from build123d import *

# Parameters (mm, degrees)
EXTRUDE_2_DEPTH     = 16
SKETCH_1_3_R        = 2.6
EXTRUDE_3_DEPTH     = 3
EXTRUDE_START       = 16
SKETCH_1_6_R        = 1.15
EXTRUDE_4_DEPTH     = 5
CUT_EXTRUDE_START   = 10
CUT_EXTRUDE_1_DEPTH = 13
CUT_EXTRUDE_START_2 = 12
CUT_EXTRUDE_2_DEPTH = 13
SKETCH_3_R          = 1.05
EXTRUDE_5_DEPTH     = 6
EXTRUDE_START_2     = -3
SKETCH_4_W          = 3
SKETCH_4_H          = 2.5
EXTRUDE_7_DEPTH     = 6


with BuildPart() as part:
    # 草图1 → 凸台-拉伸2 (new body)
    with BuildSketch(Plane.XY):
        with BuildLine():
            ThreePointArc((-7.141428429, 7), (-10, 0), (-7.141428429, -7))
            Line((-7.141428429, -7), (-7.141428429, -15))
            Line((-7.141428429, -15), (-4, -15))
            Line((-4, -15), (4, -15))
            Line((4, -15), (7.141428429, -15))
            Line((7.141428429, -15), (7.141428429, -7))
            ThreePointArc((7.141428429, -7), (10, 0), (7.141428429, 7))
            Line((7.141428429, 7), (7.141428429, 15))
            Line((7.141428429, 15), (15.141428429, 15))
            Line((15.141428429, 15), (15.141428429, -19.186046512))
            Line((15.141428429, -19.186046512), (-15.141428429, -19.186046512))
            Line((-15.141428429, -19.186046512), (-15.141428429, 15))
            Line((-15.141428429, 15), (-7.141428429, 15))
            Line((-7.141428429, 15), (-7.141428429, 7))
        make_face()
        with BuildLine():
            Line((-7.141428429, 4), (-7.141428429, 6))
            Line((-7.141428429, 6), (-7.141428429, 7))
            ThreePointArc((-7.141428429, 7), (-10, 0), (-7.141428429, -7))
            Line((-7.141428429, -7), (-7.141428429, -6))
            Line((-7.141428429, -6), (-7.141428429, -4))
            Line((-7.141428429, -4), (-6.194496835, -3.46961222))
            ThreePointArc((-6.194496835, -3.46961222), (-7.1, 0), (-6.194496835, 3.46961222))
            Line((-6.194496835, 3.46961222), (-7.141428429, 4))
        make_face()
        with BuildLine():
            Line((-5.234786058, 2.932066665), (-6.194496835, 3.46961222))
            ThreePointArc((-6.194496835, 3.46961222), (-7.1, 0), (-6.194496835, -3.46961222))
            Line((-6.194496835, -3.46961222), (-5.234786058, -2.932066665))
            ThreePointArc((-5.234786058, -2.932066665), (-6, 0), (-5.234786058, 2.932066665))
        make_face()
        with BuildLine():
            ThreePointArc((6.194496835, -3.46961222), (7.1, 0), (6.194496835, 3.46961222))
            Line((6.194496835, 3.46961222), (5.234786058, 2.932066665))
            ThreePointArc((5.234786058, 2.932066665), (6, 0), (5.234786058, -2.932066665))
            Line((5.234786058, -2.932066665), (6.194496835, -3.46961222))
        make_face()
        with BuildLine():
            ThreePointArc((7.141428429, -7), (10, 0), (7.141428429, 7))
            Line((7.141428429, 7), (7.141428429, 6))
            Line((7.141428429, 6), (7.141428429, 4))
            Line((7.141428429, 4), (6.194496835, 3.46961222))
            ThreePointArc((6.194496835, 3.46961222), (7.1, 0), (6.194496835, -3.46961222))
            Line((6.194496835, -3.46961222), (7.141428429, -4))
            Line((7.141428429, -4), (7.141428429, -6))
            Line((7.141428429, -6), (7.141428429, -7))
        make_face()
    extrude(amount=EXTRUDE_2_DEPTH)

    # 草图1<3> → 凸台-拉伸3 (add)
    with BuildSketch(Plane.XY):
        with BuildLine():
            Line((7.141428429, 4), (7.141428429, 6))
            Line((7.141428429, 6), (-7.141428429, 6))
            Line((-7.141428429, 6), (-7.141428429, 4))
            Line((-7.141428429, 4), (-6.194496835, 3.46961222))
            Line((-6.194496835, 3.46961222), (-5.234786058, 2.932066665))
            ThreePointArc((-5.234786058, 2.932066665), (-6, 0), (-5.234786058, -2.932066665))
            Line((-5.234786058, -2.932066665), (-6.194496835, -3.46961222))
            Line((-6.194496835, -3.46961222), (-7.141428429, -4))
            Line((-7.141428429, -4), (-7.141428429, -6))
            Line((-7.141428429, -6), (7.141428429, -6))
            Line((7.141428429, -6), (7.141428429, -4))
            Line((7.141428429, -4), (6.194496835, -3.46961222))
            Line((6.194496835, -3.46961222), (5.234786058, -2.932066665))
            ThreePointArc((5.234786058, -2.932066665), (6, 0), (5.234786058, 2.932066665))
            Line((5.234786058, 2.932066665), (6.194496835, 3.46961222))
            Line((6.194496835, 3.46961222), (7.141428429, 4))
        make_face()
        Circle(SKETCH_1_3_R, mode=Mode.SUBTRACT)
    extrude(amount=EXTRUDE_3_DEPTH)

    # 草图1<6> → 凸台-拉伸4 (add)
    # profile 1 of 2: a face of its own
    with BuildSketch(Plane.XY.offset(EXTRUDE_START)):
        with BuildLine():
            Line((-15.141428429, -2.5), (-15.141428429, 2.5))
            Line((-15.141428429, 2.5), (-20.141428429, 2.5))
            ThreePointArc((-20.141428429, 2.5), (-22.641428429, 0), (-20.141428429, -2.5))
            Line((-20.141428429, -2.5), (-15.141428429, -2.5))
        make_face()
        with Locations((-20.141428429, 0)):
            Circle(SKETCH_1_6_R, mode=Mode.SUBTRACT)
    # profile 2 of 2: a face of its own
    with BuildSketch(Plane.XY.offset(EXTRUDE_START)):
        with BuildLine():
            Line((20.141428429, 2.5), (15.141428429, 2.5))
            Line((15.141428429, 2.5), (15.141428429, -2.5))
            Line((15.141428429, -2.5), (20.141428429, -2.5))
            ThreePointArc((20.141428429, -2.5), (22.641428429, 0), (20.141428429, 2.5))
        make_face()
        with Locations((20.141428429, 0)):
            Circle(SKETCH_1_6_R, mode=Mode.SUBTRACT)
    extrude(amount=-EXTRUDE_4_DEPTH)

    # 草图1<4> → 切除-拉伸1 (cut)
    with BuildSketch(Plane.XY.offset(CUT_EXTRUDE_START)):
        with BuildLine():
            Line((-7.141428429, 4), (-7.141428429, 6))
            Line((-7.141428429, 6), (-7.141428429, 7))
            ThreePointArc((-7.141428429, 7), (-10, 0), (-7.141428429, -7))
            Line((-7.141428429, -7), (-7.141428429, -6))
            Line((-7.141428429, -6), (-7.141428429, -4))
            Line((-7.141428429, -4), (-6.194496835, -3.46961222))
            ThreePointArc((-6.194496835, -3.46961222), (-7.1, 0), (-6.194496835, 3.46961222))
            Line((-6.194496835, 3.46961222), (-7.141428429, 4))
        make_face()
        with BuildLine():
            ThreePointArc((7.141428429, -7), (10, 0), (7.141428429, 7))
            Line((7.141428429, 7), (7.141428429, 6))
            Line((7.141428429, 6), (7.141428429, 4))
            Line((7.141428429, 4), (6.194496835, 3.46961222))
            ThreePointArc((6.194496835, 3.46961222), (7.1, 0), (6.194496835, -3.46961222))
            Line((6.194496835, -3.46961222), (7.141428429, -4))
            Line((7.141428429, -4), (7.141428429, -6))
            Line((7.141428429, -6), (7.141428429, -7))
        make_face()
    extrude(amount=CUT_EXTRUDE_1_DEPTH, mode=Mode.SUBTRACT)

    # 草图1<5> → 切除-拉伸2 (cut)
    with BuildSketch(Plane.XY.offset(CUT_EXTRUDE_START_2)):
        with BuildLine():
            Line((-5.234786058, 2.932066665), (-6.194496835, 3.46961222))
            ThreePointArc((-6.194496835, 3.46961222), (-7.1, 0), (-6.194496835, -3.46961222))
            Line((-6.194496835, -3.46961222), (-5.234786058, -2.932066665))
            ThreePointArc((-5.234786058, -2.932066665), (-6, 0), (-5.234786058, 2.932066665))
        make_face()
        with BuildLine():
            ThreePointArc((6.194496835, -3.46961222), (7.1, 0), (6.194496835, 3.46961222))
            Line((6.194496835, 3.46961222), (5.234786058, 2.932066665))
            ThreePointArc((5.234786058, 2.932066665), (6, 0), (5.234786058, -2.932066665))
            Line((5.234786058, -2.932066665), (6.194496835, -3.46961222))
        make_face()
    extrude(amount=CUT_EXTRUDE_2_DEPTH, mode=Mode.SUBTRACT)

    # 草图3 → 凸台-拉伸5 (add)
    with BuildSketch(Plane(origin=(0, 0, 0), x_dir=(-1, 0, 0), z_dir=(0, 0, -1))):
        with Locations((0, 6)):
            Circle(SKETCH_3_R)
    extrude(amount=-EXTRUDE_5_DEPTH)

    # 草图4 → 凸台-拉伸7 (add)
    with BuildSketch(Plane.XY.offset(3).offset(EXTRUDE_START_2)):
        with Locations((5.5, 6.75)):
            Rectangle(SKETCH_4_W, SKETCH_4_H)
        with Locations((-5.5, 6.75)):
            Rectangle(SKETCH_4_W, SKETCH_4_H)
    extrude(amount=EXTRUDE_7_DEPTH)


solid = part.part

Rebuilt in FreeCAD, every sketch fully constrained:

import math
import FreeCAD as App
import Part
import Sketcher

V = App.Vector
Q = App.Units.Quantity


def add_polygon(sketch, points):
    """Adds a closed chain of lines whose ends are joined by coincident constraints."""
    first, n = sketch.GeometryCount, len(points)
    for a, b in zip(points, points[1:] + points[:1]):
        sketch.addGeometry(Part.LineSegment(App.Vector(*a, 0), App.Vector(*b, 0)), False)
    for i in range(n):
        sketch.addConstraint(Sketcher.Constraint("Coincident", first + i, 2, first + (i + 1) % n, 1))

doc = App.newDocument("Part")
body = doc.addObject("PartDesign::Body", "Body")

# Sketch on XY plane
sketch1 = doc.addObject("Sketcher::SketchObject", "Sketch")
body.addObject(sketch1)
sketch1.AttachmentSupport = (doc.XY_Plane, [""])
sketch1.MapMode = "FlatFace"
sketch1.addGeometry([
    Part.LineSegment(V(-7.1, -15, 0), V(-7.1, -4, 0)),  # 0
    Part.LineSegment(V(-7.1, -4, 0), V(-6.2, -3.5, 0)),  # 1
    Part.LineSegment(V(-6.2, -3.5, 0), V(-5.2, -2.9, 0)),  # 2
    Part.ArcOfCircle(Part.Circle(V(0, 0, 0), V(0, 0, 1), 6), math.radians(151), math.radians(209)),  # 3
    Part.LineSegment(V(-5.2, 2.9, 0), V(-6.2, 3.5, 0)),  # 4
    Part.LineSegment(V(-6.2, 3.5, 0), V(-7.1, 4, 0)),  # 5
    Part.LineSegment(V(-7.1, 4, 0), V(-7.1, 15, 0)),  # 6
    Part.LineSegment(V(-7.1, 15, 0), V(-15.1, 15, 0)),  # 7
    Part.LineSegment(V(-15.1, 15, 0), V(-15.1, -19.2, 0)),  # 8
    Part.LineSegment(V(-15.1, -19.2, 0), V(15.1, -19.2, 0)),  # 9
    Part.LineSegment(V(15.1, -19.2, 0), V(15.1, 15, 0)),  # 10
    Part.LineSegment(V(15.1, 15, 0), V(7.1, 15, 0)),  # 11
    Part.LineSegment(V(7.1, 15, 0), V(7.1, 4, 0)),  # 12
    Part.LineSegment(V(7.1, 4, 0), V(6.2, 3.5, 0)),  # 13
    Part.LineSegment(V(6.2, 3.5, 0), V(5.2, 2.9, 0)),  # 14
    Part.ArcOfCircle(Part.Circle(V(0, 0, 0), V(0, 0, 1), 6), math.radians(-29), math.radians(29)),  # 15
    Part.LineSegment(V(5.2, -2.9, 0), V(6.2, -3.5, 0)),  # 16
    Part.LineSegment(V(6.2, -3.5, 0), V(7.1, -4, 0)),  # 17
    Part.LineSegment(V(7.1, -4, 0), V(7.1, -15, 0)),  # 18
    Part.LineSegment(V(7.1, -15, 0), V(-7.1, -15, 0)),  # 19
], False)
sketch1.addConstraint([
    Sketcher.Constraint("Coincident", 0, 2, 1, 1),
    Sketcher.Constraint("Coincident", 1, 2, 2, 1),
    Sketcher.Constraint("Coincident", 2, 2, 3, 2),
    Sketcher.Constraint("Coincident", 3, 1, 4, 1),
    Sketcher.Constraint("Coincident", 4, 2, 5, 1),
    Sketcher.Constraint("Coincident", 5, 2, 6, 1),
    Sketcher.Constraint("Coincident", 6, 2, 7, 1),
    Sketcher.Constraint("Coincident", 7, 2, 8, 1),
    Sketcher.Constraint("Coincident", 8, 2, 9, 1),
    Sketcher.Constraint("Coincident", 9, 2, 10, 1),
    Sketcher.Constraint("Coincident", 10, 2, 11, 1),
    Sketcher.Constraint("Coincident", 11, 2, 12, 1),
    Sketcher.Constraint("Coincident", 12, 2, 13, 1),
    Sketcher.Constraint("Coincident", 13, 2, 14, 1),
    Sketcher.Constraint("Coincident", 14, 2, 15, 2),
    Sketcher.Constraint("Coincident", 15, 1, 16, 1),
    Sketcher.Constraint("Coincident", 16, 2, 17, 1),
    Sketcher.Constraint("Coincident", 17, 2, 18, 1),
    Sketcher.Constraint("Coincident", 18, 2, 19, 1),
    Sketcher.Constraint("Coincident", 19, 2, 0, 1),
    Sketcher.Constraint("Vertical", 0),
    Sketcher.Constraint("Vertical", 6),
    Sketcher.Constraint("Horizontal", 7),
    Sketcher.Constraint("Vertical", 8),
    Sketcher.Constraint("Horizontal", 9),
    Sketcher.Constraint("Vertical", 10),
    Sketcher.Constraint("Horizontal", 11),
    Sketcher.Constraint("Vertical", 12),
    Sketcher.Constraint("Vertical", 18),
    Sketcher.Constraint("Horizontal", 19),
    Sketcher.Constraint("Coincident", 3, 3, -1, 1),
    Sketcher.Constraint("Coincident", 15, 3, -1, 1),
    Sketcher.Constraint("Equal", 3, 15),
    Sketcher.Constraint("Symmetric", 0, 2, 12, 2, -1, 1),
    Sketcher.Constraint("Symmetric", 1, 2, 13, 2, -1, 1),
    Sketcher.Constraint("Symmetric", 4, 2, 16, 2, -1, 1),
    Sketcher.Constraint("Symmetric", 5, 2, 17, 2, -1, 1),
    Sketcher.Constraint("Symmetric", 7, 2, 10, 2, -2),
    Sketcher.Constraint("Symmetric", 5, 2, 12, 2, -2),
    Sketcher.Constraint("Symmetric", 4, 2, 13, 2, -2),
    Sketcher.Constraint("Parallel", 1, 2),
    Sketcher.Constraint("Parallel", 4, 5),
    Sketcher.Constraint("Parallel", 13, 14),
    Sketcher.Constraint("Parallel", 5, 16),
    Sketcher.Constraint("Equal", 0, 6),
    Sketcher.Constraint("Radius", 3, Q("6 mm")),
    Sketcher.Constraint("DistanceX", 7, 2, 7, 1, Q("8 mm")),
    Sketcher.Constraint("DistanceY", 0, 1, 0, 2, Q("11 mm")),
    Sketcher.Constraint("DistanceY", 0, 2, -1, 1, Q("4 mm")),
    Sketcher.Constraint("Distance", 2, Q("1.1 mm")),
    Sketcher.Constraint("DistanceX", 9, 1, 9, 2, Q("30.282857 mm")),
    Sketcher.Constraint("DistanceY", 8, 2, 8, 1, Q("34.186047 mm")),
    Sketcher.Constraint("DistanceX", 0, 2, 1, 2, Q("0.946932 mm")),
])
pad1 = doc.addObject("PartDesign::Pad", "Pad")
body.addObject(pad1)
pad1.Profile = sketch1
pad1.Length = 16

# Sketch on XY plane
sketch2 = doc.addObject("Sketcher::SketchObject", "Sketch001")
body.addObject(sketch2)
sketch2.AttachmentSupport = (doc.XY_Plane, [""])
sketch2.MapMode = "FlatFace"
sketch2.addGeometry([
    Part.LineSegment(V(7.1, 4, 0), V(7.1, 6, 0)),  # 0
    Part.LineSegment(V(7.1, 6, 0), V(-7.1, 6, 0)),  # 1
    Part.LineSegment(V(-7.1, 6, 0), V(-7.1, 4, 0)),  # 2
    Part.LineSegment(V(-7.1, 4, 0), V(-6.2, 3.5, 0)),  # 3
    Part.LineSegment(V(-6.2, 3.5, 0), V(-5.2, 2.9, 0)),  # 4
    Part.ArcOfCircle(Part.Circle(V(0, 0, 0), V(0, 0, 1), 6), math.radians(151), math.radians(209)),  # 5
    Part.LineSegment(V(-5.2, -2.9, 0), V(-6.2, -3.5, 0)),  # 6
    Part.LineSegment(V(-6.2, -3.5, 0), V(-7.1, -4, 0)),  # 7
    Part.LineSegment(V(-7.1, -4, 0), V(-7.1, -6, 0)),  # 8
    Part.LineSegment(V(-7.1, -6, 0), V(7.1, -6, 0)),  # 9
    Part.LineSegment(V(7.1, -6, 0), V(7.1, -4, 0)),  # 10
    Part.LineSegment(V(7.1, -4, 0), V(6.2, -3.5, 0)),  # 11
    Part.LineSegment(V(6.2, -3.5, 0), V(5.2, -2.9, 0)),  # 12
    Part.ArcOfCircle(Part.Circle(V(0, 0, 0), V(0, 0, 1), 6), math.radians(-29), math.radians(29)),  # 13
    Part.LineSegment(V(5.2, 2.9, 0), V(6.2, 3.5, 0)),  # 14
    Part.LineSegment(V(6.2, 3.5, 0), V(7.1, 4, 0)),  # 15
    Part.Circle(V(0, 0, 0), V(0, 0, 1), 2.6),  # 16
], False)
sketch2.addConstraint([
    Sketcher.Constraint("Coincident", 0, 2, 1, 1),
    Sketcher.Constraint("Coincident", 1, 2, 2, 1),
    Sketcher.Constraint("Coincident", 2, 2, 3, 1),
    Sketcher.Constraint("Coincident", 3, 2, 4, 1),
    Sketcher.Constraint("Coincident", 4, 2, 5, 1),
    Sketcher.Constraint("Coincident", 5, 2, 6, 1),
    Sketcher.Constraint("Coincident", 6, 2, 7, 1),
    Sketcher.Constraint("Coincident", 7, 2, 8, 1),
    Sketcher.Constraint("Coincident", 8, 2, 9, 1),
    Sketcher.Constraint("Coincident", 9, 2, 10, 1),
    Sketcher.Constraint("Coincident", 10, 2, 11, 1),
    Sketcher.Constraint("Coincident", 11, 2, 12, 1),
    Sketcher.Constraint("Coincident", 12, 2, 13, 1),
    Sketcher.Constraint("Coincident", 13, 2, 14, 1),
    Sketcher.Constraint("Coincident", 14, 2, 15, 1),
    Sketcher.Constraint("Coincident", 15, 2, 0, 1),
    Sketcher.Constraint("Vertical", 0),
    Sketcher.Constraint("Horizontal", 1),
    Sketcher.Constraint("Vertical", 2),
    Sketcher.Constraint("Vertical", 8),
    Sketcher.Constraint("Horizontal", 9),
    Sketcher.Constraint("Vertical", 10),
    Sketcher.Constraint("Coincident", 5, 3, -1, 1),
    Sketcher.Constraint("Coincident", 13, 3, -1, 1),
    Sketcher.Constraint("Coincident", 16, 3, -1, 1),
    Sketcher.Constraint("Equal", 5, 13),
    Sketcher.Constraint("Symmetric", 0, 2, 8, 2, -1, 1),
    Sketcher.Constraint("Symmetric", 2, 2, 10, 2, -1, 1),
    Sketcher.Constraint("Symmetric", 3, 2, 11, 2, -1, 1),
    Sketcher.Constraint("Symmetric", 6, 2, 14, 2, -1, 1),
    Sketcher.Constraint("Symmetric", 7, 2, 10, 2, -2),
    Sketcher.Constraint("Symmetric", 6, 2, 11, 2, -2),
    Sketcher.Constraint("Parallel", 3, 4),
    Sketcher.Constraint("Parallel", 6, 7),
    Sketcher.Constraint("Parallel", 11, 12),
    Sketcher.Constraint("Parallel", 7, 14),
    Sketcher.Constraint("Parallel", 14, 15),
    Sketcher.Constraint("Radius", 5, Q("6 mm")),
    Sketcher.Constraint("Diameter", 16, Q("5.2 mm")),
    Sketcher.Constraint("DistanceY", 0, 1, 0, 2, Q("2 mm")),
    Sketcher.Constraint("DistanceY", -1, 1, 0, 2, Q("6 mm")),
    Sketcher.Constraint("Distance", 4, Q("1.1 mm")),
    Sketcher.Constraint("DistanceX", 1, 2, 1, 1, Q("14.282857 mm")),
    Sketcher.Constraint("DistanceX", 2, 2, 3, 2, Q("0.946932 mm")),
])
pad2 = doc.addObject("PartDesign::Pad", "Pad001")
body.addObject(pad2)
pad2.Profile = sketch2
pad2.Length = 3

# Sketch on XY plane
sketch3 = doc.addObject("Sketcher::SketchObject", "Sketch002")
body.addObject(sketch3)
sketch3.AttachmentSupport = (doc.XY_Plane, [""])
sketch3.MapMode = "FlatFace"
sketch3.AttachmentOffset = App.Placement(V(0, 0, 16), App.Rotation())
sketch3.addGeometry([
    Part.LineSegment(V(-15.1, -2.5, 0), V(-15.1, 2.5, 0)),  # 0
    Part.LineSegment(V(-15.1, 2.5, 0), V(-20.1, 2.5, 0)),  # 1
    Part.ArcOfCircle(Part.Circle(V(-20.1, 0, 0), V(0, 0, 1), 2.5), math.radians(90), math.radians(270)),  # 2
    Part.LineSegment(V(-20.1, -2.5, 0), V(-15.1, -2.5, 0)),  # 3
    Part.Circle(V(-20.1, 0, 0), V(0, 0, 1), 1.1),  # 4
    Part.LineSegment(V(20.1, 2.5, 0), V(15.1, 2.5, 0)),  # 5
    Part.LineSegment(V(15.1, 2.5, 0), V(15.1, -2.5, 0)),  # 6
    Part.LineSegment(V(15.1, -2.5, 0), V(20.1, -2.5, 0)),  # 7
    Part.ArcOfCircle(Part.Circle(V(20.1, 0, 0), V(0, 0, 1), 2.5), math.radians(-90), math.radians(90)),  # 8
    Part.Circle(V(20.1, 0, 0), V(0, 0, 1), 1.1),  # 9
], False)
sketch3.addConstraint([
    Sketcher.Constraint("Coincident", 0, 2, 1, 1),
    Sketcher.Constraint("Tangent", 1, 2, 2, 1),
    Sketcher.Constraint("Tangent", 2, 2, 3, 1),
    Sketcher.Constraint("Coincident", 3, 2, 0, 1),
    Sketcher.Constraint("Coincident", 5, 2, 6, 1),
    Sketcher.Constraint("Coincident", 6, 2, 7, 1),
    Sketcher.Constraint("Tangent", 7, 2, 8, 1),
    Sketcher.Constraint("Tangent", 8, 2, 5, 1),
    Sketcher.Constraint("Vertical", 0),
    Sketcher.Constraint("Horizontal", 1),
    Sketcher.Constraint("Horizontal", 3),
    Sketcher.Constraint("Horizontal", 5),
    Sketcher.Constraint("Vertical", 6),
    Sketcher.Constraint("Horizontal", 7),
    Sketcher.Constraint("Coincident", 4, 3, 2, 3),
    Sketcher.Constraint("Coincident", 9, 3, 8, 3),
    Sketcher.Constraint("Equal", 2, 8),
    Sketcher.Constraint("Equal", 4, 9),
    Sketcher.Constraint("Symmetric", 2, 3, 8, 3, -1, 1),
    Sketcher.Constraint("Symmetric", 0, 2, 5, 2, -2),
    Sketcher.Constraint("Equal", 7, 0),
    Sketcher.Constraint("Diameter", 4, Q("2.3 mm")),
    Sketcher.Constraint("Radius", 2, Q("2.5 mm")),
    Sketcher.Constraint("DistanceX", 2, 3, -1, 1, Q("20.141428 mm")),
])
pad3 = doc.addObject("PartDesign::Pad", "Pad002")
body.addObject(pad3)
pad3.Profile = sketch3
pad3.Length = 5
pad3.Reversed = True

# Sketch on XY plane
sketch4 = doc.addObject("Sketcher::SketchObject", "Sketch003")
body.addObject(sketch4)
sketch4.AttachmentSupport = (doc.XY_Plane, [""])
sketch4.MapMode = "FlatFace"
sketch4.AttachmentOffset = App.Placement(V(0, 0, 10), App.Rotation())
sketch4.addGeometry([
    Part.LineSegment(V(-7.1, 4, 0), V(-7.1, 7, 0)),  # 0
    Part.ArcOfCircle(Part.Circle(V(0, 0, 0), V(0, 0, 1), 10), math.radians(136), math.radians(224)),  # 1
    Part.LineSegment(V(-7.1, -7, 0), V(-7.1, -4, 0)),  # 2
    Part.LineSegment(V(-7.1, -4, 0), V(-6.2, -3.5, 0)),  # 3
    Part.ArcOfCircle(Part.Circle(V(0, 0, 0), V(0, 0, 1), 7.1), math.radians(151), math.radians(209)),  # 4
    Part.LineSegment(V(-6.2, 3.5, 0), V(-7.1, 4, 0)),  # 5
    Part.ArcOfCircle(Part.Circle(V(0, 0, 0), V(0, 0, 1), 10), math.radians(-44), math.radians(44)),  # 6
    Part.LineSegment(V(7.1, 7, 0), V(7.1, 4, 0)),  # 7
    Part.LineSegment(V(7.1, 4, 0), V(6.2, 3.5, 0)),  # 8
    Part.ArcOfCircle(Part.Circle(V(0, 0, 0), V(0, 0, 1), 7.1), math.radians(-29), math.radians(29)),  # 9
    Part.LineSegment(V(6.2, -3.5, 0), V(7.1, -4, 0)),  # 10
    Part.LineSegment(V(7.1, -4, 0), V(7.1, -7, 0)),  # 11
], False)
sketch4.addConstraint([
    Sketcher.Constraint("Coincident", 0, 2, 1, 1),
    Sketcher.Constraint("Coincident", 1, 2, 2, 1),
    Sketcher.Constraint("Coincident", 2, 2, 3, 1),
    Sketcher.Constraint("Coincident", 3, 2, 4, 2),
    Sketcher.Constraint("Coincident", 4, 1, 5, 1),
    Sketcher.Constraint("Coincident", 5, 2, 0, 1),
    Sketcher.Constraint("Coincident", 6, 2, 7, 1),
    Sketcher.Constraint("Coincident", 7, 2, 8, 1),
    Sketcher.Constraint("Coincident", 8, 2, 9, 2),
    Sketcher.Constraint("Coincident", 9, 1, 10, 1),
    Sketcher.Constraint("Coincident", 10, 2, 11, 1),
    Sketcher.Constraint("Coincident", 11, 2, 6, 1),
    Sketcher.Constraint("Vertical", 0),
    Sketcher.Constraint("Vertical", 2),
    Sketcher.Constraint("Vertical", 7),
    Sketcher.Constraint("Vertical", 11),
    Sketcher.Constraint("Coincident", 1, 3, -1, 1),
    Sketcher.Constraint("Coincident", 4, 3, -1, 1),
    Sketcher.Constraint("Coincident", 6, 3, -1, 1),
    Sketcher.Constraint("Coincident", 9, 3, -1, 1),
    Sketcher.Constraint("Equal", 1, 6),
    Sketcher.Constraint("Equal", 4, 9),
    Sketcher.Constraint("Symmetric", 2, 2, 7, 2, -1, 1),
    Sketcher.Constraint("Symmetric", 5, 2, 10, 2, -1, 1),
    Sketcher.Constraint("Symmetric", 5, 2, 7, 2, -2),
    Sketcher.Constraint("Parallel", 3, 8),
    Sketcher.Constraint("Parallel", 5, 10),
    Sketcher.Constraint("Horizontal", 4, 1, 8, 2),
    Sketcher.Constraint("Radius", 1, Q("10 mm")),
    Sketcher.Constraint("Radius", 4, Q("7.1 mm")),
    Sketcher.Constraint("DistanceY", 0, 1, 0, 2, Q("3 mm")),
    Sketcher.Constraint("DistanceY", -1, 1, 0, 2, Q("7 mm")),
    Sketcher.Constraint("DistanceX", 2, 2, 3, 2, Q("0.946932 mm")),
])
pocket1 = doc.addObject("PartDesign::Pocket", "Pocket")
body.addObject(pocket1)
pocket1.Profile = sketch4
pocket1.Length = 13
pocket1.Reversed = True

# Sketch on XY plane
sketch5 = doc.addObject("Sketcher::SketchObject", "Sketch004")
body.addObject(sketch5)
sketch5.AttachmentSupport = (doc.XY_Plane, [""])
sketch5.MapMode = "FlatFace"
sketch5.AttachmentOffset = App.Placement(V(0, 0, 12), App.Rotation())
sketch5.addGeometry([
    Part.LineSegment(V(-5.2, 2.9, 0), V(-6.2, 3.5, 0)),  # 0
    Part.ArcOfCircle(Part.Circle(V(0, 0, 0), V(0, 0, 1), 7.1), math.radians(151), math.radians(209)),  # 1
    Part.LineSegment(V(-6.2, -3.5, 0), V(-5.2, -2.9, 0)),  # 2
    Part.ArcOfCircle(Part.Circle(V(0, 0, 0), V(0, 0, 1), 6), math.radians(151), math.radians(209)),  # 3
    Part.ArcOfCircle(Part.Circle(V(0, 0, 0), V(0, 0, 1), 7.1), math.radians(-29), math.radians(29)),  # 4
    Part.LineSegment(V(6.2, 3.5, 0), V(5.2, 2.9, 0)),  # 5
    Part.ArcOfCircle(Part.Circle(V(0, 0, 0), V(0, 0, 1), 6), math.radians(-29), math.radians(29)),  # 6
    Part.LineSegment(V(5.2, -2.9, 0), V(6.2, -3.5, 0)),  # 7
], False)
sketch5.addConstraint([
    Sketcher.Constraint("Coincident", 0, 2, 1, 1),
    Sketcher.Constraint("Coincident", 1, 2, 2, 1),
    Sketcher.Constraint("Coincident", 2, 2, 3, 2),
    Sketcher.Constraint("Coincident", 3, 1, 0, 1),
    Sketcher.Constraint("Coincident", 4, 2, 5, 1),
    Sketcher.Constraint("Coincident", 5, 2, 6, 2),
    Sketcher.Constraint("Coincident", 6, 1, 7, 1),
    Sketcher.Constraint("Coincident", 7, 2, 4, 1),
    Sketcher.Constraint("Coincident", 1, 3, -1, 1),
    Sketcher.Constraint("Coincident", 3, 3, -1, 1),
    Sketcher.Constraint("Coincident", 4, 3, -1, 1),
    Sketcher.Constraint("Coincident", 6, 3, -1, 1),
    Sketcher.Constraint("Equal", 1, 4),
    Sketcher.Constraint("Equal", 3, 6),
    Sketcher.Constraint("Parallel", 2, 5),
    Sketcher.Constraint("Parallel", 0, 7),
    Sketcher.Constraint("Horizontal", 0, 2, 4, 2),
    Sketcher.Constraint("Horizontal", 3, 1, 5, 2),
    Sketcher.Constraint("Horizontal", 2, 2, 6, 1),
    Sketcher.Constraint("Vertical", 0, 2, 1, 2),
    Sketcher.Constraint("Radius", 3, Q("6 mm")),
    Sketcher.Constraint("Radius", 1, Q("7.1 mm")),
    Sketcher.Constraint("DistanceX", 1, 2, 2, 2, Q("0.959711 mm")),
    Sketcher.Constraint("DistanceY", 7, 2, 5, 2, Q("6.401679 mm")),
])
pocket2 = doc.addObject("PartDesign::Pocket", "Pocket001")
body.addObject(pocket2)
pocket2.Profile = sketch5
pocket2.Length = 13
pocket2.Reversed = True

# Sketch on XY plane
sketch6 = doc.addObject("Sketcher::SketchObject", "Sketch005")
body.addObject(sketch6)
sketch6.AttachmentSupport = (doc.XY_Plane, [""])
sketch6.MapMode = "FlatFace"
sketch6.addGeometry(Part.Circle(V(0, 6, 0), V(0, 0, 1), 1.1), False)
sketch6.addConstraint([
    Sketcher.Constraint("PointOnObject", 0, 3, -2),
    Sketcher.Constraint("Diameter", 0, Q("2.1 mm")),
    Sketcher.Constraint("DistanceY", -1, 1, 0, 3, Q("6 mm")),
])
pad4 = doc.addObject("PartDesign::Pad", "Pad003")
body.addObject(pad4)
pad4.Profile = sketch6
pad4.Length = 6

# Sketch on XY plane
sketch7 = doc.addObject("Sketcher::SketchObject", "Sketch006")
body.addObject(sketch7)
sketch7.AttachmentSupport = (doc.XY_Plane, [""])
sketch7.MapMode = "FlatFace"
add_polygon(sketch7, [(4, 8), (4, 5.5), (7, 5.5), (7, 8)])  # lines 0-3
add_polygon(sketch7, [(-7, 8), (-7, 5.5), (-4, 5.5), (-4, 8)])  # lines 4-7
sketch7.addConstraint([
    Sketcher.Constraint("Vertical", 0),
    Sketcher.Constraint("Horizontal", 1),
    Sketcher.Constraint("Vertical", 2),
    Sketcher.Constraint("Horizontal", 3),
    Sketcher.Constraint("Vertical", 4),
    Sketcher.Constraint("Horizontal", 5),
    Sketcher.Constraint("Vertical", 6),
    Sketcher.Constraint("Horizontal", 7),
    Sketcher.Constraint("Symmetric", 1, 2, 4, 2, -2),
    Sketcher.Constraint("Symmetric", 3, 2, 6, 2, -2),
    Sketcher.Constraint("DistanceX", 1, 1, 1, 2, Q("3 mm")),
    Sketcher.Constraint("DistanceY", 0, 2, 0, 1, Q("2.5 mm")),
    Sketcher.Constraint("DistanceX", -1, 1, 0, 2, Q("4 mm")),
    Sketcher.Constraint("DistanceY", -1, 1, 2, 2, Q("8 mm")),
])
pad5 = doc.addObject("PartDesign::Pad", "Pad004")
body.addObject(pad5)
pad5.Profile = sketch7
pad5.Length = 6

doc.recompute()
